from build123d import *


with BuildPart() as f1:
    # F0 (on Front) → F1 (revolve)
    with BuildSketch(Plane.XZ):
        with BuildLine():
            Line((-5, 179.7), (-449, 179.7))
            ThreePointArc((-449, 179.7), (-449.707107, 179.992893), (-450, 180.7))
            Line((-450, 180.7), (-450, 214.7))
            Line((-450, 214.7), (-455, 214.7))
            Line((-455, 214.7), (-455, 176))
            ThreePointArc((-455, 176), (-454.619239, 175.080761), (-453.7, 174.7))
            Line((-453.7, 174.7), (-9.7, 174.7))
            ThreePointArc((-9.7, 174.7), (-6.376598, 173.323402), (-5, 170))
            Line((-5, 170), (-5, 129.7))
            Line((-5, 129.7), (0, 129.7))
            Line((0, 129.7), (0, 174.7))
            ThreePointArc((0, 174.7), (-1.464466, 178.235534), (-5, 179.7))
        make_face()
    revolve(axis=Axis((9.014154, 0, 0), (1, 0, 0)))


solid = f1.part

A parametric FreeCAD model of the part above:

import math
import FreeCAD as App
import Part
import Sketcher
Q = App.Units.Quantity

doc = App.newDocument("Part")
body = doc.addObject("PartDesign::Body", "Body")

# Sketch on XZ plane
sketch1 = body.newObject("Sketcher::SketchObject", "Sketch")
sketch1.AttachmentSupport = (doc.getObject("XZ_Plane"), [""])
sketch1.MapMode = "FlatFace"
sketch1.addGeometry(Part.LineSegment(App.Vector(-5, 179.7, 0), App.Vector(-449, 179.7, 0)), False)
sketch1.addGeometry(Part.ArcOfCircle(Part.Circle(App.Vector(-449, 180.7, 0), App.Vector(0, 0, 1), 1), math.radians(180), math.radians(270)), False)
sketch1.addGeometry(Part.LineSegment(App.Vector(-450, 180.7, 0), App.Vector(-450, 214.7, 0)), False)
sketch1.addGeometry(Part.LineSegment(App.Vector(-450, 214.7, 0), App.Vector(-455, 214.7, 0)), False)
sketch1.addGeometry(Part.LineSegment(App.Vector(-455, 214.7, 0), App.Vector(-455, 176, 0)), False)
sketch1.addGeometry(Part.ArcOfCircle(Part.Circle(App.Vector(-453.7, 176, 0), App.Vector(0, 0, 1), 1.3), math.radians(180), math.radians(270)), False)
sketch1.addGeometry(Part.LineSegment(App.Vector(-453.7, 174.7, 0), App.Vector(-9.7, 174.7, 0)), False)
sketch1.addGeometry(Part.ArcOfCircle(Part.Circle(App.Vector(-9.7, 170, 0), App.Vector(0, 0, 1), 4.7), math.radians(0), math.radians(90)), False)
sketch1.addGeometry(Part.LineSegment(App.Vector(-5, 170, 0), App.Vector(-5, 129.7, 0)), False)
sketch1.addGeometry(Part.LineSegment(App.Vector(-5, 129.7, 0), App.Vector(0, 129.7, 0)), False)
sketch1.addGeometry(Part.LineSegment(App.Vector(0, 129.7, 0), App.Vector(0, 174.7, 0)), False)
sketch1.addGeometry(Part.ArcOfCircle(Part.Circle(App.Vector(-5, 174.7, 0), App.Vector(0, 0, 1), 5), math.radians(0), math.radians(90)), False)
sketch1.addConstraint(Sketcher.Constraint("Tangent", 0, 2, 1, 2))
sketch1.addConstraint(Sketcher.Constraint("Tangent", 1, 1, 2, 1))
sketch1.addConstraint(Sketcher.Constraint("Coincident", 2, 2, 3, 1))
sketch1.addConstraint(Sketcher.Constraint("Coincident", 3, 2, 4, 1))
sketch1.addConstraint(Sketcher.Constraint("Tangent", 4, 2, 5, 1))
sketch1.addConstraint(Sketcher.Constraint("Tangent", 5, 2, 6, 1))
sketch1.addConstraint(Sketcher.Constraint("Tangent", 6, 2, 7, 2))
sketch1.addConstraint(Sketcher.Constraint("Tangent", 7, 1, 8, 1))
sketch1.addConstraint(Sketcher.Constraint("Coincident", 8, 2, 9, 1))
sketch1.addConstraint(Sketcher.Constraint("Coincident", 9, 2, 10, 1))
sketch1.addConstraint(Sketcher.Constraint("Tangent", 10, 2, 11, 1))
sketch1.addConstraint(Sketcher.Constraint("Tangent", 11, 2, 0, 1))
sketch1.addConstraint(Sketcher.Constraint("Horizontal", 0))
sketch1.addConstraint(Sketcher.Constraint("Vertical", 2))
sketch1.addConstraint(Sketcher.Constraint("Horizontal", 3))
sketch1.addConstraint(Sketcher.Constraint("Vertical", 4))
sketch1.addConstraint(Sketcher.Constraint("Horizontal", 6))
sketch1.addConstraint(Sketcher.Constraint("Vertical", 8))
sketch1.addConstraint(Sketcher.Constraint("Horizontal", 9))
sketch1.addConstraint(Sketcher.Constraint("Vertical", 10))
sketch1.addConstraint(Sketcher.Constraint("PointOnObject", 9, 2, -2))
sketch1.addConstraint(Sketcher.Constraint("Horizontal", 11, 3, 5, 2))
sketch1.addConstraint(Sketcher.Constraint("Vertical", 11, 3, 7, 1))
sketch1.addConstraint(Sketcher.Constraint("Equal", 0, 6))
sketch1.addConstraint(Sketcher.Constraint("Equal", 3, 9))
sketch1.addConstraint(Sketcher.Constraint("Radius", 1, Q("0.999999 mm")))
sketch1.addConstraint(Sketcher.Constraint("Radius", 11, Q("5 mm")))
sketch1.addConstraint(Sketcher.Constraint("Radius", 5, Q("1.299999 mm")))
sketch1.addConstraint(Sketcher.Constraint("DistanceX", 0, 2, 0, 1, Q("444 mm")))
sketch1.addConstraint(Sketcher.Constraint("DistanceY", 2, 1, 2, 2, Q("34 mm")))
sketch1.addConstraint(Sketcher.Constraint("DistanceY", 10, 1, 10, 2, Q("45 mm")))
sketch1.addConstraint(Sketcher.Constraint("DistanceY", -1, 1, 5, 3, Q("175.999999 mm")))
revolution = body.newObject("PartDesign::Revolution", "Revolution")
revolution.Profile = sketch1
revolution.ReferenceAxis = (sketch1, ["H_Axis"])
revolution.Angle = 360

doc.recompute()
